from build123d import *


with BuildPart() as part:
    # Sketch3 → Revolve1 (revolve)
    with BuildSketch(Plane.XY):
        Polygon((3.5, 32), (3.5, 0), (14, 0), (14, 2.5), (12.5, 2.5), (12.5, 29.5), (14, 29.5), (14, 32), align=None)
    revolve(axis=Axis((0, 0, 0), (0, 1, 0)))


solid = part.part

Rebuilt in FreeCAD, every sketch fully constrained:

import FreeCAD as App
import Part
import Sketcher
from FreeCAD import Vector
Q = App.Units.Quantity

doc = App.newDocument("Part")
body = doc.addObject("PartDesign::Body", "Body")

# Sketch on XY plane
sketch1 = body.newObject("Sketcher::SketchObject", "Sketch")
sketch1.AttachmentSupport = (doc.getObject("XY_Plane"), [""])
sketch1.MapMode = "FlatFace"
sketch1.addGeometry([
    Part.LineSegment(Vector(3.5, 32, 0), Vector(3.5, 0, 0)),  # 0
    Part.LineSegment(Vector(3.5, 0, 0), Vector(14, 0, 0)),  # 1
    Part.LineSegment(Vector(14, 0, 0), Vector(14, 2.5, 0)),  # 2
    Part.LineSegment(Vector(14, 2.5, 0), Vector(12.5, 2.5, 0)),  # 3
    Part.LineSegment(Vector(12.5, 2.5, 0), Vector(12.5, 29.5, 0)),  # 4
    Part.LineSegment(Vector(12.5, 29.5, 0), Vector(14, 29.5, 0)),  # 5
    Part.LineSegment(Vector(14, 29.5, 0), Vector(14, 32, 0)),  # 6
    Part.LineSegment(Vector(14, 32, 0), Vector(3.5, 32, 0)),  # 7
], False)
sketch1.addConstraint([
    Sketcher.Constraint("Coincident", 0, 2, 1, 1),
    Sketcher.Constraint("Coincident", 1, 2, 2, 1),
    Sketcher.Constraint("Coincident", 2, 2, 3, 1),
    Sketcher.Constraint("Coincident", 3, 2, 4, 1),
    Sketcher.Constraint("Coincident", 4, 2, 5, 1),
    Sketcher.Constraint("Coincident", 5, 2, 6, 1),
    Sketcher.Constraint("Coincident", 6, 2, 7, 1),
    Sketcher.Constraint("Coincident", 7, 2, 0, 1),
    Sketcher.Constraint("Vertical", 0),
    Sketcher.Constraint("Horizontal", 1),
    Sketcher.Constraint("Vertical", 2),
    Sketcher.Constraint("Horizontal", 3),
    Sketcher.Constraint("Vertical", 4),
    Sketcher.Constraint("Horizontal", 5),
    Sketcher.Constraint("Vertical", 6),
    Sketcher.Constraint("Horizontal", 7),
    Sketcher.Constraint("PointOnObject", 0, 2, -1),
    Sketcher.Constraint("Vertical", 2, 2, 5, 2),
    Sketcher.Constraint("Equal", 2, 6),
    Sketcher.Constraint("DistanceY", 0, 2, 0, 1, Q("32 mm")),
    Sketcher.Constraint("DistanceY", 4, 1, 4, 2, Q("27 mm")),
    Sketcher.Constraint("DistanceX", 1, 1, 1, 2, Q("10.5 mm")),
    Sketcher.Constraint("DistanceX", 3, 2, 3, 1, Q("1.5 mm")),
    Sketcher.Constraint("DistanceX", -1, 1, 1, 2, Q("14 mm")),
])
revolution = body.newObject("PartDesign::Revolution", "Revolution")
revolution.Profile = sketch1
revolution.ReferenceAxis = (sketch1, ["V_Axis"])
revolution.Angle = 360

doc.recompute()
